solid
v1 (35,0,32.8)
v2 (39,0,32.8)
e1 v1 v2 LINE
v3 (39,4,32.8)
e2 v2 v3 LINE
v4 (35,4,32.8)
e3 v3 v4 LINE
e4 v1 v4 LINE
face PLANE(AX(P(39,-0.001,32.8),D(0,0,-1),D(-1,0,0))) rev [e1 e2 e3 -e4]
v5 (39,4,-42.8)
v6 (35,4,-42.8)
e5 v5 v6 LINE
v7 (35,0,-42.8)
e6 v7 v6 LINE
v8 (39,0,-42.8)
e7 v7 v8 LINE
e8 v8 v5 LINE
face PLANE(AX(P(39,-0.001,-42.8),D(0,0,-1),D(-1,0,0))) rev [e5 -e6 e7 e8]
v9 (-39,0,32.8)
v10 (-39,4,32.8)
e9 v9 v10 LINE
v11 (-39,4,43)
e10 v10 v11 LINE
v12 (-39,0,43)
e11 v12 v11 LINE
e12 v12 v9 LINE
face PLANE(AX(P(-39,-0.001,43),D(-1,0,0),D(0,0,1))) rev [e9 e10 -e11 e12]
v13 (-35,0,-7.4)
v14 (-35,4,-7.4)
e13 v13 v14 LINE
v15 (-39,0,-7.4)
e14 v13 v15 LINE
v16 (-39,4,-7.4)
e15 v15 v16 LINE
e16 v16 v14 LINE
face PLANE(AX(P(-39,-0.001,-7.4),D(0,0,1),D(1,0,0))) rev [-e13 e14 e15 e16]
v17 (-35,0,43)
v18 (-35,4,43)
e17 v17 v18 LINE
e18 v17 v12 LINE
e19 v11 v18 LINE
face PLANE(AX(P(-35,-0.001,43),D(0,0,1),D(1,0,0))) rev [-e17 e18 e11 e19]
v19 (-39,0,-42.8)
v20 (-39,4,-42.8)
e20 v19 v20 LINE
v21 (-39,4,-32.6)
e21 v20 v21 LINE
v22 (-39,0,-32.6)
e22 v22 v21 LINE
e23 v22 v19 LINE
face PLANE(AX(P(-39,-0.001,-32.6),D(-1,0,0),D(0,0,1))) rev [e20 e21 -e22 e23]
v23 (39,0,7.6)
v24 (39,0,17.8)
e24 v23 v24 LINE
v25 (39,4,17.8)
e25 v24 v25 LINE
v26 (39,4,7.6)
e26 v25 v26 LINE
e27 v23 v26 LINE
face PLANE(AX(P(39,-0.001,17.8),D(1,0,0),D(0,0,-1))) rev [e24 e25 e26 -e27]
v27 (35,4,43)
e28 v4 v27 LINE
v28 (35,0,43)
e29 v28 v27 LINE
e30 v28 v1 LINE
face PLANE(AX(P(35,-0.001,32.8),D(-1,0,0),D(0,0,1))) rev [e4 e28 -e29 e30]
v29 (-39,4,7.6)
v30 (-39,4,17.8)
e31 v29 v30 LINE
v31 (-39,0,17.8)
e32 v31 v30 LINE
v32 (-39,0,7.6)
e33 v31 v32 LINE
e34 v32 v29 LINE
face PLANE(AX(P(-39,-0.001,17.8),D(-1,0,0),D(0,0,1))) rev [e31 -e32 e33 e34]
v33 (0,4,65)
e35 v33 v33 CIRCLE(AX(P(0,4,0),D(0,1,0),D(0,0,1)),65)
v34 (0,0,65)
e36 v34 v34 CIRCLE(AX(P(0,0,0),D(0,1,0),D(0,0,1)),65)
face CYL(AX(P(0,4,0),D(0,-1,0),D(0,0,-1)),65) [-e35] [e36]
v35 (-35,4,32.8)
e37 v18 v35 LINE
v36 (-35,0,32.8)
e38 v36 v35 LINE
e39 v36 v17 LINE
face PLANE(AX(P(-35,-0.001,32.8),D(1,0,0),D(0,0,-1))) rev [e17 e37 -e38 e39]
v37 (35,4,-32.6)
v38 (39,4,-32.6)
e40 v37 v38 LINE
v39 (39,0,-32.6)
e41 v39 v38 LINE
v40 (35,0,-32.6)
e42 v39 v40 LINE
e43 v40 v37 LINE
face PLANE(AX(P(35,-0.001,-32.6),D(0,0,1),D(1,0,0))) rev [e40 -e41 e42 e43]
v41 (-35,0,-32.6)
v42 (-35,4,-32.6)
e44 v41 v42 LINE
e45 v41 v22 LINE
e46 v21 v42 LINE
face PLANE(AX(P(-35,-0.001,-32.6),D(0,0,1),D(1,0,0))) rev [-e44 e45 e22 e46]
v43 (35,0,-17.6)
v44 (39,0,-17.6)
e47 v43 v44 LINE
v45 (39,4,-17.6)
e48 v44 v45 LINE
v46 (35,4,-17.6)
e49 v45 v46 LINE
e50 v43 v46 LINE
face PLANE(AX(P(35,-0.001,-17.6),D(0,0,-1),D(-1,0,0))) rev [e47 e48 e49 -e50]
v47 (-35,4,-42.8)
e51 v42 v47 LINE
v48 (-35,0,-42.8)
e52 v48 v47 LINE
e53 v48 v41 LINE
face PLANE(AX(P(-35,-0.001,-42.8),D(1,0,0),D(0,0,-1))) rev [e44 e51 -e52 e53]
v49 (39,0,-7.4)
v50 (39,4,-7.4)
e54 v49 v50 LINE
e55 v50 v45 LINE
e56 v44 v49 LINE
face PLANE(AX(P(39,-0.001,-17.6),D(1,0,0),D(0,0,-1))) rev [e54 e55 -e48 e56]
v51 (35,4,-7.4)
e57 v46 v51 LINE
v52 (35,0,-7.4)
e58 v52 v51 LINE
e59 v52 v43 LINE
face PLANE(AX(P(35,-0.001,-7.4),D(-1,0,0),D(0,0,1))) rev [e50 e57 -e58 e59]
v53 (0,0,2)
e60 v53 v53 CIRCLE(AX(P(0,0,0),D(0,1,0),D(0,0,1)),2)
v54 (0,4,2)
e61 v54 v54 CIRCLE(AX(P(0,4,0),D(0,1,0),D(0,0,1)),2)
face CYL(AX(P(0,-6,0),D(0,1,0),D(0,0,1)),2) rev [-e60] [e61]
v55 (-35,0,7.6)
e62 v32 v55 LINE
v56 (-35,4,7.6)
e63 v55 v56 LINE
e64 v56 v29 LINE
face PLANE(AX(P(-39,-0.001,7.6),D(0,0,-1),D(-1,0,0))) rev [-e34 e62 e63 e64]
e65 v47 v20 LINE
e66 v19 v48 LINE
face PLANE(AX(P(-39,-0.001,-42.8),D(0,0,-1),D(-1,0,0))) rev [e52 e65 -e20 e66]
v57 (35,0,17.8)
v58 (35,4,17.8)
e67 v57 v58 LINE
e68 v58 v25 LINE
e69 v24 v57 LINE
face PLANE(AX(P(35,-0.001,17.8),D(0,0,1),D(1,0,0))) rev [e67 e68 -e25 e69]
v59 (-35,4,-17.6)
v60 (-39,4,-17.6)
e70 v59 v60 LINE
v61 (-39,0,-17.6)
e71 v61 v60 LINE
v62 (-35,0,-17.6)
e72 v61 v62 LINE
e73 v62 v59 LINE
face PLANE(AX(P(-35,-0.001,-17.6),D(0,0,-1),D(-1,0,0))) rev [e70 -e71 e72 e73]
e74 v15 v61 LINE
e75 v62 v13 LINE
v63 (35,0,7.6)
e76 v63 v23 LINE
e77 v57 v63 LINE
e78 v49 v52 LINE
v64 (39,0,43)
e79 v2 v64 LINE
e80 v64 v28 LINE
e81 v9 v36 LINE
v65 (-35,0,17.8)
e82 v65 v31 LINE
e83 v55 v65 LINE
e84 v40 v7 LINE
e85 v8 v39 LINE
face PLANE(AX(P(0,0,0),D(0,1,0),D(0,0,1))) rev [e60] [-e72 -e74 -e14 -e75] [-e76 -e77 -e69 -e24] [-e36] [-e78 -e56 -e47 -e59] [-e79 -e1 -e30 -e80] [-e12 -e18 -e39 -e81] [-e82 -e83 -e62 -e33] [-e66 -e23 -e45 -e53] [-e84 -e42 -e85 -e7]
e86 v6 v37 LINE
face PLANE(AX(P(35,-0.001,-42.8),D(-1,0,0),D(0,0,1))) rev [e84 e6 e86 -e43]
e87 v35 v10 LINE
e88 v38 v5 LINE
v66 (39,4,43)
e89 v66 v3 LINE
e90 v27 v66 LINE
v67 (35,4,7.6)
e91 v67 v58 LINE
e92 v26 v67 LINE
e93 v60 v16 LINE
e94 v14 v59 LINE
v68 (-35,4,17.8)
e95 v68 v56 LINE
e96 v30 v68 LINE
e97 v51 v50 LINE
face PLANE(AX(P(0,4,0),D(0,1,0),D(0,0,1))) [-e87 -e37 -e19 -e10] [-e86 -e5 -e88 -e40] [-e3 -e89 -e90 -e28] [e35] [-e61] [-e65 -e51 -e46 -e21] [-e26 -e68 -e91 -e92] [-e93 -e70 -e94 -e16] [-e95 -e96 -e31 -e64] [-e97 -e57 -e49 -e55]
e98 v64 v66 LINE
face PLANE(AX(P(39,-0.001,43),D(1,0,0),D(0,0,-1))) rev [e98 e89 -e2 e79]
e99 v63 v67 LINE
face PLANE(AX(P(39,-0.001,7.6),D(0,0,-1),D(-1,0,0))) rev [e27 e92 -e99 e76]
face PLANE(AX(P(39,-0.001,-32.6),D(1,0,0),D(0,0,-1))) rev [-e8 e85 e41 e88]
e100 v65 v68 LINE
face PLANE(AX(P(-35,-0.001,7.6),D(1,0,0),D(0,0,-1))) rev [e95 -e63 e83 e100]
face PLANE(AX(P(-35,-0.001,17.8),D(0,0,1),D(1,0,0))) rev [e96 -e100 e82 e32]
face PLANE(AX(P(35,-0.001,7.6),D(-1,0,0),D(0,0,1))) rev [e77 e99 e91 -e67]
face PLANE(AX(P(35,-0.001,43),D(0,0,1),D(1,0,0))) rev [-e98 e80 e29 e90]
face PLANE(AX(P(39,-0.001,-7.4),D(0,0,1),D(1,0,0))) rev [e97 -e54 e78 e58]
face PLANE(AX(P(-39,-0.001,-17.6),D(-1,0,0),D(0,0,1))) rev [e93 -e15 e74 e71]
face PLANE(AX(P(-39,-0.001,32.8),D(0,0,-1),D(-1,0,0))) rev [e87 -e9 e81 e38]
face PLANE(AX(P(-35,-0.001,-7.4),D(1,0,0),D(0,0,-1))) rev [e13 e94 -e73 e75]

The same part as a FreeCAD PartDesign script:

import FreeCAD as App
import Part
import Sketcher


def add_polygon(sketch, points):
    """Adds a closed chain of lines whose ends are joined by coincident constraints."""
    first, n = sketch.GeometryCount, len(points)
    for a, b in zip(points, points[1:] + points[:1]):
        sketch.addGeometry(Part.LineSegment(App.Vector(*a, 0), App.Vector(*b, 0)), False)
    for i in range(n):
        sketch.addConstraint(Sketcher.Constraint("Coincident", first + i, 2, first + (i + 1) % n, 1))

doc = App.newDocument("Part")
body = doc.addObject("PartDesign::Body", "Body")

# Sketch on XZ plane
sketch1 = body.newObject("Sketcher::SketchObject", "Sketch")
sketch1.AttachmentSupport = (doc.getObject("XZ_Plane"), [""])
sketch1.MapMode = "FlatFace"
sketch1.addGeometry(Part.Circle(App.Vector(0, 0, 0), App.Vector(0, 0, 1), 65), False)
sketch1.addConstraint(Sketcher.Constraint("Coincident", 0, 3, -1, 1))
sketch1.addConstraint(Sketcher.Constraint("Diameter", 0, 130.0))
pad1 = body.newObject("PartDesign::Pad", "Pad")
pad1.Profile = sketch1
pad1.Length = 4
pad1.Reversed = True

# Sketch on XZ plane
sketch2 = body.newObject("Sketcher::SketchObject", "Sketch001")
sketch2.AttachmentSupport = (doc.getObject("XZ_Plane"), [""])
sketch2.MapMode = "FlatFace"
sketch2.AttachmentOffset = App.Placement(App.Vector(0, 0, -4), App.Rotation())
add_polygon(sketch2, [(-39, -17.6), (-39, -7.4), (-35, -7.4), (-35, -17.6)])  # lines 0-3
sketch2.addConstraint(Sketcher.Constraint("Vertical", 0))
sketch2.addConstraint(Sketcher.Constraint("Horizontal", 1))
sketch2.addConstraint(Sketcher.Constraint("Vertical", 2))
sketch2.addConstraint(Sketcher.Constraint("Horizontal", 3))
sketch2.addConstraint(Sketcher.Constraint("DistanceX", 1, 1, 1, 2, 4.0))
sketch2.addConstraint(Sketcher.Constraint("DistanceY", 0, 1, 0, 2, 10.2))
sketch2.addConstraint(Sketcher.Constraint("DistanceX", 0, 2, -1, 1, 39.0))
sketch2.addConstraint(Sketcher.Constraint("DistanceY", 0, 2, -1, 1, 7.4))
pocket1 = body.newObject("PartDesign::Pocket", "Pocket")
pocket1.Profile = sketch2
pocket1.Type = "UpToFirst"
pocket1.Reversed = True

# Sketch on XZ plane
sketch3 = body.newObject("Sketcher::SketchObject", "Sketch002")
sketch3.AttachmentSupport = (doc.getObject("XZ_Plane"), [""])
sketch3.MapMode = "FlatFace"
sketch3.AttachmentOffset = App.Placement(App.Vector(0, 0, -4), App.Rotation())
add_polygon(sketch3, [(-39, 7.6), (-39, 17.8), (-35, 17.8), (-35, 7.6)])  # lines 0-3
sketch3.addConstraint(Sketcher.Constraint("Vertical", 0))
sketch3.addConstraint(Sketcher.Constraint("Horizontal", 1))
sketch3.addConstraint(Sketcher.Constraint("Vertical", 2))
sketch3.addConstraint(Sketcher.Constraint("Horizontal", 3))
sketch3.addConstraint(Sketcher.Constraint("DistanceX", 1, 1, 1, 2, 4.0))
sketch3.addConstraint(Sketcher.Constraint("DistanceY", 0, 1, 0, 2, 10.2))
sketch3.addConstraint(Sketcher.Constraint("DistanceX", 0, 2, -1, 1, 39.0))
sketch3.addConstraint(Sketcher.Constraint("DistanceY", -1, 1, 0, 2, 17.8))
pocket2 = body.newObject("PartDesign::Pocket", "Pocket001")
pocket2.Profile = sketch3
pocket2.Type = "UpToFirst"
pocket2.Reversed = True

# Sketch on XZ plane
sketch4 = body.newObject("Sketcher::SketchObject", "Sketch003")
sketch4.AttachmentSupport = (doc.getObject("XZ_Plane"), [""])
sketch4.MapMode = "FlatFace"
sketch4.AttachmentOffset = App.Placement(App.Vector(0, 0, -4), App.Rotation())
add_polygon(sketch4, [(-39, 32.8), (-39, 43), (-35, 43), (-35, 32.8)])  # lines 0-3
sketch4.addConstraint(Sketcher.Constraint("Vertical", 0))
sketch4.addConstraint(Sketcher.Constraint("Horizontal", 1))
sketch4.addConstraint(Sketcher.Constraint("Vertical", 2))
sketch4.addConstraint(Sketcher.Constraint("Horizontal", 3))
sketch4.addConstraint(Sketcher.Constraint("DistanceX", 1, 1, 1, 2, 4.0))
sketch4.addConstraint(Sketcher.Constraint("DistanceY", 0, 1, 0, 2, 10.2))
sketch4.addConstraint(Sketcher.Constraint("DistanceX", 0, 2, -1, 1, 39.0))
sketch4.addConstraint(Sketcher.Constraint("DistanceY", -1, 1, 0, 2, 43.0))
pocket3 = body.newObject("PartDesign::Pocket", "Pocket002")
pocket3.Profile = sketch4
pocket3.Type = "UpToFirst"
pocket3.Reversed = True

# Sketch on XZ plane
sketch5 = body.newObject("Sketcher::SketchObject", "Sketch004")
sketch5.AttachmentSupport = (doc.getObject("XZ_Plane"), [""])
sketch5.MapMode = "FlatFace"
sketch5.AttachmentOffset = App.Placement(App.Vector(0, 0, -4), App.Rotation())
add_polygon(sketch5, [(-39, -42.8), (-39, -32.6), (-35, -32.6), (-35, -42.8)])  # lines 0-3
sketch5.addConstraint(Sketcher.Constraint("Vertical", 0))
sketch5.addConstraint(Sketcher.Constraint("Horizontal", 1))
sketch5.addConstraint(Sketcher.Constraint("Vertical", 2))
sketch5.addConstraint(Sketcher.Constraint("Horizontal", 3))
sketch5.addConstraint(Sketcher.Constraint("DistanceX", 1, 1, 1, 2, 4.0))
sketch5.addConstraint(Sketcher.Constraint("DistanceY", 0, 1, 0, 2, 10.2))
sketch5.addConstraint(Sketcher.Constraint("DistanceX", 0, 2, -1, 1, 39.0))
sketch5.addConstraint(Sketcher.Constraint("DistanceY", 0, 2, -1, 1, 32.6))
pocket4 = body.newObject("PartDesign::Pocket", "Pocket003")
pocket4.Profile = sketch5
pocket4.Type = "UpToFirst"
pocket4.Reversed = True

# Sketch on XZ plane
sketch6 = body.newObject("Sketcher::SketchObject", "Sketch005")
sketch6.AttachmentSupport = (doc.getObject("XZ_Plane"), [""])
sketch6.MapMode = "FlatFace"
sketch6.AttachmentOffset = App.Placement(App.Vector(0, 0, -4), App.Rotation())
add_polygon(sketch6, [(35, -42.8), (35, -32.6), (39, -32.6), (39, -42.8)])  # lines 0-3
sketch6.addConstraint(Sketcher.Constraint("Vertical", 0))
sketch6.addConstraint(Sketcher.Constraint("Horizontal", 1))
sketch6.addConstraint(Sketcher.Constraint("Vertical", 2))
sketch6.addConstraint(Sketcher.Constraint("Horizontal", 3))
sketch6.addConstraint(Sketcher.Constraint("DistanceX", 1, 1, 1, 2, 4.0))
sketch6.addConstraint(Sketcher.Constraint("DistanceY", 0, 1, 0, 2, 10.2))
sketch6.addConstraint(Sketcher.Constraint("DistanceX", -1, 1, 0, 2, 35.0))
sketch6.addConstraint(Sketcher.Constraint("DistanceY", 0, 2, -1, 1, 32.6))
pocket5 = body.newObject("PartDesign::Pocket", "Pocket004")
pocket5.Profile = sketch6
pocket5.Type = "UpToFirst"
pocket5.Reversed = True

# Sketch on XZ plane
sketch7 = body.newObject("Sketcher::SketchObject", "Sketch006")
sketch7.AttachmentSupport = (doc.getObject("XZ_Plane"), [""])
sketch7.MapMode = "FlatFace"
sketch7.AttachmentOffset = App.Placement(App.Vector(0, 0, -4), App.Rotation())
add_polygon(sketch7, [(35, -17.6), (35, -7.4), (39, -7.4), (39, -17.6)])  # lines 0-3
sketch7.addConstraint(Sketcher.Constraint("Vertical", 0))
sketch7.addConstraint(Sketcher.Constraint("Horizontal", 1))
sketch7.addConstraint(Sketcher.Constraint("Vertical", 2))
sketch7.addConstraint(Sketcher.Constraint("Horizontal", 3))
sketch7.addConstraint(Sketcher.Constraint("DistanceX", 1, 1, 1, 2, 4.0))
sketch7.addConstraint(Sketcher.Constraint("DistanceY", 0, 1, 0, 2, 10.2))
sketch7.addConstraint(Sketcher.Constraint("DistanceX", -1, 1, 0, 2, 35.0))
sketch7.addConstraint(Sketcher.Constraint("DistanceY", 0, 2, -1, 1, 7.4))
pocket6 = body.newObject("PartDesign::Pocket", "Pocket005")
pocket6.Profile = sketch7
pocket6.Type = "UpToFirst"
pocket6.Reversed = True

# Sketch on XZ plane
sketch8 = body.newObject("Sketcher::SketchObject", "Sketch007")
sketch8.AttachmentSupport = (doc.getObject("XZ_Plane"), [""])
sketch8.MapMode = "FlatFace"
sketch8.AttachmentOffset = App.Placement(App.Vector(0, 0, -4), App.Rotation())
add_polygon(sketch8, [(35, 7.6), (35, 17.8), (39, 17.8), (39, 7.6)])  # lines 0-3
sketch8.addConstraint(Sketcher.Constraint("Vertical", 0))
sketch8.addConstraint(Sketcher.Constraint("Horizontal", 1))
sketch8.addConstraint(Sketcher.Constraint("Vertical", 2))
sketch8.addConstraint(Sketcher.Constraint("Horizontal", 3))
sketch8.addConstraint(Sketcher.Constraint("DistanceX", 1, 1, 1, 2, 4.0))
sketch8.addConstraint(Sketcher.Constraint("DistanceY", 0, 1, 0, 2, 10.2))
sketch8.addConstraint(Sketcher.Constraint("DistanceX", -1, 1, 0, 2, 35.0))
sketch8.addConstraint(Sketcher.Constraint("DistanceY", -1, 1, 0, 2, 17.8))
pocket7 = body.newObject("PartDesign::Pocket", "Pocket006")
pocket7.Profile = sketch8
pocket7.Type = "UpToFirst"
pocket7.Reversed = True

# Sketch on XZ plane
sketch9 = body.newObject("Sketcher::SketchObject", "Sketch008")
sketch9.AttachmentSupport = (doc.getObject("XZ_Plane"), [""])
sketch9.MapMode = "FlatFace"
sketch9.AttachmentOffset = App.Placement(App.Vector(0, 0, -4), App.Rotation())
add_polygon(sketch9, [(35, 32.8), (35, 43), (39, 43), (39, 32.8)])  # lines 0-3
sketch9.addConstraint(Sketcher.Constraint("Vertical", 0))
sketch9.addConstraint(Sketcher.Constraint("Horizontal", 1))
sketch9.addConstraint(Sketcher.Constraint("Vertical", 2))
sketch9.addConstraint(Sketcher.Constraint("Horizontal", 3))
sketch9.addConstraint(Sketcher.Constraint("DistanceX", 1, 1, 1, 2, 4.0))
sketch9.addConstraint(Sketcher.Constraint("DistanceY", 0, 1, 0, 2, 10.2))
sketch9.addConstraint(Sketcher.Constraint("DistanceX", -1, 1, 0, 2, 35.0))
sketch9.addConstraint(Sketcher.Constraint("DistanceY", -1, 1, 0, 2, 43.0))
pocket8 = body.newObject("PartDesign::Pocket", "Pocket007")
pocket8.Profile = sketch9
pocket8.Type = "UpToFirst"
pocket8.Reversed = True

# Sketch on XZ plane
sketch10 = body.newObject("Sketcher::SketchObject", "Sketch009")
sketch10.AttachmentSupport = (doc.getObject("XZ_Plane"), [""])
sketch10.MapMode = "FlatFace"
sketch10.AttachmentOffset = App.Placement(App.Vector(0, 0, -4), App.Rotation())
sketch10.addGeometry(Part.Circle(App.Vector(0, 0, 0), App.Vector(0, 0, 1), 2), False)
sketch10.addConstraint(Sketcher.Constraint("Coincident", 0, 3, -1, 1))
sketch10.addConstraint(Sketcher.Constraint("Diameter", 0, 4.0))
pocket9 = body.newObject("PartDesign::Pocket", "Pocket008")
pocket9.Profile = sketch10
pocket9.Length = 10
pocket9.Reversed = True

doc.recompute()
